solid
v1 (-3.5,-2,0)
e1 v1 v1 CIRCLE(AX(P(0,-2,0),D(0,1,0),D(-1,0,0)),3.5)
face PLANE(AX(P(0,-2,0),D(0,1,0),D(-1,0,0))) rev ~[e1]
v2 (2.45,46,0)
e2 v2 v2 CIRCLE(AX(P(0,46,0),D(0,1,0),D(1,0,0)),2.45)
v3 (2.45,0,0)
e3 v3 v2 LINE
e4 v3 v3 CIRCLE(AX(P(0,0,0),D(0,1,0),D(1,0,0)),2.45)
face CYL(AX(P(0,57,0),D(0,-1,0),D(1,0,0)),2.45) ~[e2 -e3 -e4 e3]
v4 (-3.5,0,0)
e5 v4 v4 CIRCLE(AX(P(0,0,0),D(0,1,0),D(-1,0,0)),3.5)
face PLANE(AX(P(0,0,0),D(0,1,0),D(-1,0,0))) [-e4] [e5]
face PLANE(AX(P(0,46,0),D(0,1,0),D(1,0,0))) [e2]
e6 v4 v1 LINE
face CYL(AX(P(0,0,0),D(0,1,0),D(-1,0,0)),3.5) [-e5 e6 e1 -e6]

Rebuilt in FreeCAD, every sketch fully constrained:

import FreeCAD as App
import Part
import Sketcher

V = App.Vector

doc = App.newDocument("Part")
body = doc.addObject("PartDesign::Body", "Body")

# Sketch on XZ plane
sketch1 = body.newObject("Sketcher::SketchObject", "Sketch")
sketch1.AttachmentSupport = (doc.getObject("XZ_Plane"), [""])
sketch1.MapMode = "FlatFace"
sketch1.addGeometry(Part.Circle(V(0, 0, 0), V(0, 0, 1), 3.5), False)
sketch1.addConstraint([
    Sketcher.Constraint("Coincident", 0, 3, -1, 1),
    Sketcher.Constraint("Diameter", 0, 7.0),
])
pad1 = body.newObject("PartDesign::Pad", "Pad")
pad1.Profile = sketch1
pad1.Length = 2

# Sketch on XZ plane
sketch2 = body.newObject("Sketcher::SketchObject", "Sketch001")
sketch2.AttachmentSupport = (doc.getObject("XZ_Plane"), [""])
sketch2.MapMode = "FlatFace"
sketch2.addGeometry(Part.Circle(V(0, 0, 0), V(0, 0, 1), 2.45), False)
sketch2.addConstraint([
    Sketcher.Constraint("Coincident", 0, 3, -1, 1),
    Sketcher.Constraint("Diameter", 0, 4.9),
])
pad2 = body.newObject("PartDesign::Pad", "Pad001")
pad2.Profile = sketch2
pad2.Length = 70
pad2.Reversed = True

# Sketch on XZ plane
sketch3 = body.newObject("Sketcher::SketchObject", "Sketch002")
sketch3.AttachmentSupport = (doc.getObject("XZ_Plane"), [""])
sketch3.MapMode = "FlatFace"
sketch3.AttachmentOffset = App.Placement(V(0, 0, -70), App.Rotation())
sketch3.addGeometry(Part.Circle(V(0, 0, 0), V(0, 0, 1), 2.5), False)
sketch3.addConstraint([
    Sketcher.Constraint("Coincident", 0, 3, -1, 1),
    Sketcher.Constraint("Diameter", 0, 5.0),
])
pocket1 = body.newObject("PartDesign::Pocket", "Pocket")
pocket1.Profile = sketch3
pocket1.Length = 25
pocket1.Reversed = True

# Sketch on XZ plane
sketch4 = body.newObject("Sketcher::SketchObject", "Sketch003")
sketch4.AttachmentSupport = (doc.getObject("XZ_Plane"), [""])
sketch4.MapMode = "FlatFace"
sketch4.AttachmentOffset = App.Placement(V(0, 0, -45), App.Rotation())
sketch4.addGeometry(Part.Circle(V(0, 0, 0), V(0, 0, 1), 2.45), False)
sketch4.addConstraint([
    Sketcher.Constraint("Coincident", 0, 3, -1, 1),
    Sketcher.Constraint("Diameter", 0, 4.9),
])
pad3 = body.newObject("PartDesign::Pad", "Pad002")
pad3.Profile = sketch4
pad3.Length = 12
pad3.Reversed = True

# Sketch on XZ plane
sketch5 = body.newObject("Sketcher::SketchObject", "Sketch004")
sketch5.AttachmentSupport = (doc.getObject("XZ_Plane"), [""])
sketch5.MapMode = "FlatFace"
sketch5.AttachmentOffset = App.Placement(V(0, 0, -57), App.Rotation())
sketch5.addGeometry(Part.Circle(V(0, 0, 0), V(0, 0, 1), 2.45), False)
sketch5.addConstraint([
    Sketcher.Constraint("Coincident", 0, 3, -1, 1),
    Sketcher.Constraint("Diameter", 0, 4.9),
])
pad4 = body.newObject("PartDesign::Pad", "Pad003")
pad4.Profile = sketch5
pad4.Length = 12
pad4.Reversed = True

# Sketch on XZ plane
sketch6 = body.newObject("Sketcher::SketchObject", "Sketch005")
sketch6.AttachmentSupport = (doc.getObject("XZ_Plane"), [""])
sketch6.MapMode = "FlatFace"
sketch6.AttachmentOffset = App.Placement(V(0, 0, -69), App.Rotation())
sketch6.addGeometry(Part.Circle(V(0, 0, 0), V(0, 0, 1), 2.45), False)
sketch6.addConstraint([
    Sketcher.Constraint("Coincident", 0, 3, -1, 1),
    Sketcher.Constraint("Diameter", 0, 4.9),
])
pocket2 = body.newObject("PartDesign::Pocket", "Pocket001")
pocket2.Profile = sketch6
pocket2.Length = 23
pocket2.Reversed = True

doc.recompute()
